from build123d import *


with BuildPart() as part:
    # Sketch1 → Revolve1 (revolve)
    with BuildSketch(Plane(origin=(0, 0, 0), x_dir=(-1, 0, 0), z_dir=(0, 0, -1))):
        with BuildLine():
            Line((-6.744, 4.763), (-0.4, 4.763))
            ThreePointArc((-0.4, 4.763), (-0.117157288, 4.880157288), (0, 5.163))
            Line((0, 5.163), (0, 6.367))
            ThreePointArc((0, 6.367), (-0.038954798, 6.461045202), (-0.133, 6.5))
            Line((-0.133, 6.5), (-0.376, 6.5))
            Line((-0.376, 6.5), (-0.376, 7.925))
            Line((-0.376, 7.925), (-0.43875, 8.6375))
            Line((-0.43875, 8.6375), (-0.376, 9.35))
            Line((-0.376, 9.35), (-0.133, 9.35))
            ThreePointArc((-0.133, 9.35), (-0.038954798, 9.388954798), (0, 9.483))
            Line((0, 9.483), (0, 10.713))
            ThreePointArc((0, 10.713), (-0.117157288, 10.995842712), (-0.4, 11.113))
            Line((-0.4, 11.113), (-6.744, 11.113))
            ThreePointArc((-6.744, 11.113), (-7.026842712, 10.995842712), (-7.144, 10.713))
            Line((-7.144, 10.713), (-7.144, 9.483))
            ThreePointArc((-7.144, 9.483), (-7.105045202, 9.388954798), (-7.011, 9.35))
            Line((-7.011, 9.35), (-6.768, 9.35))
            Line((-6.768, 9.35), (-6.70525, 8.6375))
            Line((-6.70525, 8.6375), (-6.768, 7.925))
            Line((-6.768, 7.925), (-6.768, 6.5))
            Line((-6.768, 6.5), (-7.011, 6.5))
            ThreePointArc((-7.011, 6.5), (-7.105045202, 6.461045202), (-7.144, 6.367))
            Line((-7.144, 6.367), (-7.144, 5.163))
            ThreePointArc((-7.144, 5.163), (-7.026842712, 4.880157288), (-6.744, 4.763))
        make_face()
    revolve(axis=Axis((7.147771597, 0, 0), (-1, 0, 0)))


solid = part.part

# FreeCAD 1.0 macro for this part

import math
import FreeCAD as App
import Part
import Sketcher
from FreeCAD import Vector
Q = App.Units.Quantity

doc = App.newDocument("Part")
body = doc.addObject("PartDesign::Body", "Body")

# Sketch on XY plane
sketch1 = body.newObject("Sketcher::SketchObject", "Sketch")
sketch1.AttachmentSupport = (doc.getObject("XY_Plane"), [""])
sketch1.MapMode = "FlatFace"
sketch1.addGeometry(Part.LineSegment(Vector(6.74, 4.76, 0), Vector(0.4, 4.76, 0)), False)
sketch1.addGeometry(Part.ArcOfCircle(Part.Circle(Vector(0.4, 5.16, 0), Vector(0, 0, 1), 0.4), math.radians(-180), math.radians(-90)), False)
sketch1.addGeometry(Part.LineSegment(Vector(0, 5.16, 0), Vector(0, 6.37, 0)), False)
sketch1.addGeometry(Part.ArcOfCircle(Part.Circle(Vector(0.13, 6.37, 0), Vector(0, 0, 1), 0.13), math.radians(90), math.radians(180)), False)
sketch1.addGeometry(Part.LineSegment(Vector(0.13, 6.5, 0), Vector(0.38, 6.5, 0)), False)
sketch1.addGeometry(Part.LineSegment(Vector(0.38, 6.5, 0), Vector(0.38, 7.92, 0)), False)
sketch1.addGeometry(Part.LineSegment(Vector(0.38, 7.92, 0), Vector(0.44, 8.64, 0)), False)
sketch1.addGeometry(Part.LineSegment(Vector(0.44, 8.64, 0), Vector(0.38, 9.35, 0)), False)
sketch1.addGeometry(Part.LineSegment(Vector(0.38, 9.35, 0), Vector(0.13, 9.35, 0)), False)
sketch1.addGeometry(Part.ArcOfCircle(Part.Circle(Vector(0.13, 9.48, 0), Vector(0, 0, 1), 0.13), math.radians(180), math.radians(270)), False)
sketch1.addGeometry(Part.LineSegment(Vector(0, 9.48, 0), Vector(0, 10.71, 0)), False)
sketch1.addGeometry(Part.ArcOfCircle(Part.Circle(Vector(0.4, 10.71, 0), Vector(0, 0, 1), 0.4), math.radians(90), math.radians(180)), False)
sketch1.addGeometry(Part.LineSegment(Vector(0.4, 11.11, 0), Vector(6.74, 11.11, 0)), False)
sketch1.addGeometry(Part.ArcOfCircle(Part.Circle(Vector(6.74, 10.71, 0), Vector(0, 0, 1), 0.4), math.radians(0), math.radians(90)), False)
sketch1.addGeometry(Part.LineSegment(Vector(7.14, 10.71, 0), Vector(7.14, 9.48, 0)), False)
sketch1.addGeometry(Part.ArcOfCircle(Part.Circle(Vector(7.01, 9.48, 0), Vector(0, 0, 1), 0.13), math.radians(-90), math.radians(0)), False)
sketch1.addGeometry(Part.LineSegment(Vector(7.01, 9.35, 0), Vector(6.77, 9.35, 0)), False)
sketch1.addGeometry(Part.LineSegment(Vector(6.77, 9.35, 0), Vector(6.71, 8.64, 0)), False)
sketch1.addGeometry(Part.LineSegment(Vector(6.71, 8.64, 0), Vector(6.77, 7.92, 0)), False)
sketch1.addGeometry(Part.LineSegment(Vector(6.77, 7.92, 0), Vector(6.77, 6.5, 0)), False)
sketch1.addGeometry(Part.LineSegment(Vector(6.77, 6.5, 0), Vector(7.01, 6.5, 0)), False)
sketch1.addGeometry(Part.ArcOfCircle(Part.Circle(Vector(7.01, 6.37, 0), Vector(0, 0, 1), 0.13), math.radians(0), math.radians(90)), False)
sketch1.addGeometry(Part.LineSegment(Vector(7.14, 6.37, 0), Vector(7.14, 5.16, 0)), False)
sketch1.addGeometry(Part.ArcOfCircle(Part.Circle(Vector(6.74, 5.16, 0), Vector(0, 0, 1), 0.4), math.radians(-90), math.radians(0)), False)
sketch1.addConstraint(Sketcher.Constraint("Tangent", 0, 2, 1, 2))
sketch1.addConstraint(Sketcher.Constraint("Tangent", 1, 1, 2, 1))
sketch1.addConstraint(Sketcher.Constraint("Tangent", 2, 2, 3, 2))
sketch1.addConstraint(Sketcher.Constraint("Tangent", 3, 1, 4, 1))
sketch1.addConstraint(Sketcher.Constraint("Coincident", 4, 2, 5, 1))
sketch1.addConstraint(Sketcher.Constraint("Coincident", 5, 2, 6, 1))
sketch1.addConstraint(Sketcher.Constraint("Coincident", 6, 2, 7, 1))
sketch1.addConstraint(Sketcher.Constraint("Coincident", 7, 2, 8, 1))
sketch1.addConstraint(Sketcher.Constraint("Tangent", 8, 2, 9, 2))
sketch1.addConstraint(Sketcher.Constraint("Tangent", 9, 1, 10, 1))
sketch1.addConstraint(Sketcher.Constraint("Tangent", 10, 2, 11, 2))
sketch1.addConstraint(Sketcher.Constraint("Tangent", 11, 1, 12, 1))
sketch1.addConstraint(Sketcher.Constraint("Tangent", 12, 2, 13, 2))
sketch1.addConstraint(Sketcher.Constraint("Tangent", 13, 1, 14, 1))
sketch1.addConstraint(Sketcher.Constraint("Tangent", 14, 2, 15, 2))
sketch1.addConstraint(Sketcher.Constraint("Tangent", 15, 1, 16, 1))
sketch1.addConstraint(Sketcher.Constraint("Coincident", 16, 2, 17, 1))
sketch1.addConstraint(Sketcher.Constraint("Coincident", 17, 2, 18, 1))
sketch1.addConstraint(Sketcher.Constraint("Coincident", 18, 2, 19, 1))
sketch1.addConstraint(Sketcher.Constraint("Coincident", 19, 2, 20, 1))
sketch1.addConstraint(Sketcher.Constraint("Tangent", 20, 2, 21, 2))
sketch1.addConstraint(Sketcher.Constraint("Tangent", 21, 1, 22, 1))
sketch1.addConstraint(Sketcher.Constraint("Tangent", 22, 2, 23, 2))
sketch1.addConstraint(Sketcher.Constraint("Tangent", 23, 1, 0, 1))
sketch1.addConstraint(Sketcher.Constraint("Horizontal", 0))
sketch1.addConstraint(Sketcher.Constraint("Vertical", 2))
sketch1.addConstraint(Sketcher.Constraint("Horizontal", 4))
sketch1.addConstraint(Sketcher.Constraint("Vertical", 5))
sketch1.addConstraint(Sketcher.Constraint("Horizontal", 8))
sketch1.addConstraint(Sketcher.Constraint("Vertical", 10))
sketch1.addConstraint(Sketcher.Constraint("Horizontal", 12))
sketch1.addConstraint(Sketcher.Constraint("Vertical", 14))
sketch1.addConstraint(Sketcher.Constraint("Horizontal", 16))
sketch1.addConstraint(Sketcher.Constraint("Vertical", 19))
sketch1.addConstraint(Sketcher.Constraint("Horizontal", 20))
sketch1.addConstraint(Sketcher.Constraint("Vertical", 22))
sketch1.addConstraint(Sketcher.Constraint("Equal", 3, 9))
sketch1.addConstraint(Sketcher.Constraint("Equal", 1, 11))
sketch1.addConstraint(Sketcher.Constraint("Equal", 11, 13))
sketch1.addConstraint(Sketcher.Constraint("Equal", 9, 15))
sketch1.addConstraint(Sketcher.Constraint("Equal", 15, 21))
sketch1.addConstraint(Sketcher.Constraint("Equal", 13, 23))
sketch1.addConstraint(Sketcher.Constraint("PointOnObject", 1, 1, -2))
sketch1.addConstraint(Sketcher.Constraint("PointOnObject", 9, 1, -2))
sketch1.addConstraint(Sketcher.Constraint("Parallel", 6, 17))
sketch1.addConstraint(Sketcher.Constraint("Parallel", 7, 18))
sketch1.addConstraint(Sketcher.Constraint("Horizontal", 9, 3, 15, 3))
sketch1.addConstraint(Sketcher.Constraint("Horizontal", 3, 3, 21, 3))
sketch1.addConstraint(Sketcher.Constraint("Horizontal", 6, 2, 17, 2))
sketch1.addConstraint(Sketcher.Constraint("Horizontal", 5, 2, 18, 2))
sketch1.addConstraint(Sketcher.Constraint("Vertical", 15, 3, 21, 3))
sketch1.addConstraint(Sketcher.Constraint("Vertical", 5, 2, 7, 2))
sketch1.addConstraint(Sketcher.Constraint("Vertical", 16, 2, 18, 2))
sketch1.addConstraint(Sketcher.Constraint("Equal", 8, 16))
sketch1.addConstraint(Sketcher.Constraint("Radius", 1, Q("0.4 mm")))
sketch1.addConstraint(Sketcher.Constraint("Radius", 3, Q("0.133 mm")))
sketch1.addConstraint(Sketcher.Constraint("DistanceY", 10, 1, 10, 2, Q("1.23 mm")))
sketch1.addConstraint(Sketcher.Constraint("DistanceY", -1, 1, 3, 1, Q("6.5 mm")))
sketch1.addConstraint(Sketcher.Constraint("DistanceX", 0, 2, 0, 1, Q("6.344 mm")))
sketch1.addConstraint(Sketcher.Constraint("DistanceX", 4, 1, 4, 2, Q("0.243 mm")))
sketch1.addConstraint(Sketcher.Constraint("DistanceY", 2, 1, 2, 2, Q("1.204 mm")))
sketch1.addConstraint(Sketcher.Constraint("DistanceY", 5, 1, 5, 2, Q("1.425 mm")))
sketch1.addConstraint(Sketcher.Constraint("DistanceY", -1, 1, 7, 2, Q("9.35 mm")))
sketch1.addConstraint(Sketcher.Constraint("DistanceX", -1, 1, 6, 2, Q("0.43875 mm")))
revolution = body.newObject("PartDesign::Revolution", "Revolution")
revolution.Profile = sketch1
revolution.ReferenceAxis = (sketch1, ["H_Axis"])
revolution.Angle = 360

doc.recompute()
